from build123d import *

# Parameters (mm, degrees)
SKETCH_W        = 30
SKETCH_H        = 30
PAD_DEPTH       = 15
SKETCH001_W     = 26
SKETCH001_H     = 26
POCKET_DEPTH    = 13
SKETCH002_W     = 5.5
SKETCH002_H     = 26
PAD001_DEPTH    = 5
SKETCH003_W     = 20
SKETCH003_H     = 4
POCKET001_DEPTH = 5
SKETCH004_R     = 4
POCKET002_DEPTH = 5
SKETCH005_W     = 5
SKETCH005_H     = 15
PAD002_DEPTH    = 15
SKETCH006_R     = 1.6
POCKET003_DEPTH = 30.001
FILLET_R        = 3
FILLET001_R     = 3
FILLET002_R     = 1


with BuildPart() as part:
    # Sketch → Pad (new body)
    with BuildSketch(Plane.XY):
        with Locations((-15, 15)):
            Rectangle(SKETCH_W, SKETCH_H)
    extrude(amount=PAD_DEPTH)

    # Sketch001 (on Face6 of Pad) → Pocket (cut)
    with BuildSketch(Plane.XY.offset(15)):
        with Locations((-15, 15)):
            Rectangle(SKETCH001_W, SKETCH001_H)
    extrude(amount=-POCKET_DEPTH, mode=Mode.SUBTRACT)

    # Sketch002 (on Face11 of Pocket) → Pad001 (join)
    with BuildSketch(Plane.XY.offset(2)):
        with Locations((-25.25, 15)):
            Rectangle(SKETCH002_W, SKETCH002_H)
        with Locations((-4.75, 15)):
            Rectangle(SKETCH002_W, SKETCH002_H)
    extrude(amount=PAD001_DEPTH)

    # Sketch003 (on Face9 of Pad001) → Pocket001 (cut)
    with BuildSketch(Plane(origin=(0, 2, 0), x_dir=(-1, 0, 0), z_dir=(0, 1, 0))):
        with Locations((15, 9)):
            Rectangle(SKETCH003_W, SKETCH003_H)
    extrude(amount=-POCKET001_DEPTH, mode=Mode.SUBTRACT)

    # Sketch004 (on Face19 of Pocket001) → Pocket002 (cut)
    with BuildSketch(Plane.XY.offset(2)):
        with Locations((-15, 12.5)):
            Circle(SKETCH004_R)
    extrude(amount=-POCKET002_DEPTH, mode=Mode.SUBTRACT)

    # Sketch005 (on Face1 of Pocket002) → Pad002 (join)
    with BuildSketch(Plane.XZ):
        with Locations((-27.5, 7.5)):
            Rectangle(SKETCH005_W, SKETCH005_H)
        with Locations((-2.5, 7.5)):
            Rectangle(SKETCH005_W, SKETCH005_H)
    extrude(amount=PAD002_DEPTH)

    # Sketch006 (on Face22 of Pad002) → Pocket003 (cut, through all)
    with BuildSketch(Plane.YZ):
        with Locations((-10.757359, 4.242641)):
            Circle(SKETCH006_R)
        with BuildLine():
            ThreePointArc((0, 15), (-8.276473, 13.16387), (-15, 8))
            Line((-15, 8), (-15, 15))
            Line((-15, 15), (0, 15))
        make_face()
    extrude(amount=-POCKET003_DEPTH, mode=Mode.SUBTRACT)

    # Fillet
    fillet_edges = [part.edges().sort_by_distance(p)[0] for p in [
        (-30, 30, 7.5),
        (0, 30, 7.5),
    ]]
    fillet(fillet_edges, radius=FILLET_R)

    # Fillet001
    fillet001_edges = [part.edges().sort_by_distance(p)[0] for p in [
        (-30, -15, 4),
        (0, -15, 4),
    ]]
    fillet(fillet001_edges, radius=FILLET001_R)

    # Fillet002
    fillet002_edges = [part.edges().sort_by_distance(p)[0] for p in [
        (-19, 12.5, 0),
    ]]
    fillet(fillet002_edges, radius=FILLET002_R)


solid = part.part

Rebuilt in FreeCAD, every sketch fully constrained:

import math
import FreeCAD as App
import Part
import Sketcher

V = App.Vector


def edges_at(feature, points):
    """Names of the edges that pass closest to the given points."""
    edges = feature.Shape.Edges
    near = lambda p: min(range(len(edges)), key=lambda i: edges[i].distToShape(Part.Vertex(*p))[0])
    return sorted({f"Edge{near(p) + 1}" for p in points})

doc = App.newDocument("Part")
body = doc.addObject("PartDesign::Body", "Body")

sketch1 = body.newObject("Sketcher::SketchObject", "Sketch")
sketch1.AttachmentSupport = (doc.getObject("XY_Plane"), [""])
sketch1.MapMode = "FlatFace"
sketch1.addGeometry([
    Part.LineSegment(V(-30, 30, 0), V(-30, 0, 0)),
    Part.LineSegment(V(-30, 0, 0), V(0, 0, 0)),
    Part.LineSegment(V(0, 0, 0), V(0, 30, 0)),
    Part.LineSegment(V(0, 30, 0), V(-30, 30, 0)),
], False)
sketch1.addConstraint([
    Sketcher.Constraint("Coincident", 0, 2, 1, 1),
    Sketcher.Constraint("Coincident", 1, 2, 2, 1),
    Sketcher.Constraint("Coincident", 2, 2, 3, 1),
    Sketcher.Constraint("Coincident", 3, 2, 0, 1),
    Sketcher.Constraint("Vertical", 0),
    Sketcher.Constraint("Horizontal", 1),
    Sketcher.Constraint("Vertical", 2),
    Sketcher.Constraint("Horizontal", 3),
    Sketcher.Constraint("Coincident", 1, 2, -1, 1),
    Sketcher.Constraint("Equal", 3, 0),
    Sketcher.Constraint("DistanceX", 1, 1, 1, 2, 30.0),
])
pad1 = body.newObject("PartDesign::Pad", "Pad")
pad1.Profile = sketch1
pad1.Length = 15

sketch2 = body.newObject("Sketcher::SketchObject", "Sketch001")
sketch2.AttachmentSupport = (doc.getObject("XY_Plane"), [""])
sketch2.MapMode = "FlatFace"
sketch2.AttachmentOffset = App.Placement(V(0, 0, 15), App.Rotation())
sketch2.addGeometry([
    Part.LineSegment(V(-28, 28, 0), V(-28, 2, 0)),
    Part.LineSegment(V(-28, 2, 0), V(-2, 2, 0)),
    Part.LineSegment(V(-2, 2, 0), V(-2, 28, 0)),
    Part.LineSegment(V(-2, 28, 0), V(-28, 28, 0)),
], False)
sketch2.addConstraint([
    Sketcher.Constraint("Coincident", 0, 2, 1, 1),
    Sketcher.Constraint("Coincident", 1, 2, 2, 1),
    Sketcher.Constraint("Coincident", 2, 2, 3, 1),
    Sketcher.Constraint("Coincident", 3, 2, 0, 1),
    Sketcher.Constraint("Vertical", 0),
    Sketcher.Constraint("Horizontal", 1),
    Sketcher.Constraint("Vertical", 2),
    Sketcher.Constraint("Horizontal", 3),
    Sketcher.Constraint("Equal", 3, 0),
    Sketcher.Constraint("DistanceX", 1, 1, 1, 2, 26.0),
    Sketcher.Constraint("DistanceX", 0, 2, -1, 1, 28.0),
    Sketcher.Constraint("DistanceY", -1, 1, 0, 2, 2.0),
])
pocket1 = body.newObject("PartDesign::Pocket", "Pocket")
pocket1.Profile = sketch2
pocket1.Length = 13

sketch3 = body.newObject("Sketcher::SketchObject", "Sketch002")
sketch3.AttachmentSupport = (doc.getObject("XY_Plane"), [""])
sketch3.MapMode = "FlatFace"
sketch3.AttachmentOffset = App.Placement(V(0, 0, 2), App.Rotation())
sketch3.addGeometry([
    Part.LineSegment(V(-28, 28, 0), V(-28, 2, 0)),
    Part.LineSegment(V(-28, 2, 0), V(-22.5, 2, 0)),
    Part.LineSegment(V(-22.5, 2, 0), V(-22.5, 28, 0)),
    Part.LineSegment(V(-22.5, 28, 0), V(-28, 28, 0)),
    Part.LineSegment(V(-7.5, 28, 0), V(-7.5, 2, 0)),
    Part.LineSegment(V(-7.5, 2, 0), V(-2, 2, 0)),
    Part.LineSegment(V(-2, 2, 0), V(-2, 28, 0)),
    Part.LineSegment(V(-2, 28, 0), V(-7.5, 28, 0)),
], False)
sketch3.addConstraint([
    Sketcher.Constraint("Coincident", 0, 2, 1, 1),
    Sketcher.Constraint("Coincident", 1, 2, 2, 1),
    Sketcher.Constraint("Coincident", 2, 2, 3, 1),
    Sketcher.Constraint("Coincident", 3, 2, 0, 1),
    Sketcher.Constraint("Coincident", 4, 2, 5, 1),
    Sketcher.Constraint("Coincident", 5, 2, 6, 1),
    Sketcher.Constraint("Coincident", 6, 2, 7, 1),
    Sketcher.Constraint("Coincident", 7, 2, 4, 1),
    Sketcher.Constraint("Vertical", 0),
    Sketcher.Constraint("Horizontal", 1),
    Sketcher.Constraint("Vertical", 2),
    Sketcher.Constraint("Horizontal", 3),
    Sketcher.Constraint("Vertical", 4),
    Sketcher.Constraint("Horizontal", 5),
    Sketcher.Constraint("Vertical", 6),
    Sketcher.Constraint("Horizontal", 7),
    Sketcher.Constraint("Horizontal", 1, 2, 4, 2),
    Sketcher.Constraint("Horizontal", 3, 2, 6, 2),
    Sketcher.Constraint("Equal", 3, 5),
    Sketcher.Constraint("DistanceY", 0, 2, 0, 1, 26.0),
    Sketcher.Constraint("DistanceX", 1, 1, 1, 2, 5.5),
    Sketcher.Constraint("DistanceX", 0, 2, -1, 1, 28.0),
    Sketcher.Constraint("DistanceY", -1, 1, 0, 2, 2.0),
    Sketcher.Constraint("DistanceX", 5, 2, -1, 1, 2.0),
])
pad2 = body.newObject("PartDesign::Pad", "Pad001")
pad2.Profile = sketch3
pad2.Length = 5

sketch4 = body.newObject("Sketcher::SketchObject", "Sketch003")
sketch4.AttachmentSupport = (doc.getObject("XZ_Plane"), [""])
sketch4.MapMode = "FlatFace"
sketch4.AttachmentOffset = App.Placement(V(0, 0, -2), App.Rotation())
sketch4.addGeometry([
    Part.LineSegment(V(-5, 11, 0), V(-5, 7, 0)),
    Part.LineSegment(V(-5, 7, 0), V(-25, 7, 0)),
    Part.LineSegment(V(-25, 7, 0), V(-25, 11, 0)),
    Part.LineSegment(V(-25, 11, 0), V(-5, 11, 0)),
], False)
sketch4.addConstraint([
    Sketcher.Constraint("Coincident", 0, 2, 1, 1),
    Sketcher.Constraint("Coincident", 1, 2, 2, 1),
    Sketcher.Constraint("Coincident", 2, 2, 3, 1),
    Sketcher.Constraint("Coincident", 3, 2, 0, 1),
    Sketcher.Constraint("Vertical", 0),
    Sketcher.Constraint("Horizontal", 1),
    Sketcher.Constraint("Vertical", 2),
    Sketcher.Constraint("Horizontal", 3),
    Sketcher.Constraint("DistanceX", 1, 2, 1, 1, 20.0),
    Sketcher.Constraint("DistanceY", 0, 2, 0, 1, 4.0),
    Sketcher.Constraint("DistanceX", 0, 2, -1, 1, 5.0),
    Sketcher.Constraint("DistanceY", -1, 1, 0, 2, 7.0),
])
pocket2 = body.newObject("PartDesign::Pocket", "Pocket001")
pocket2.Profile = sketch4
pocket2.Length = 5
pocket2.Reversed = True

sketch5 = body.newObject("Sketcher::SketchObject", "Sketch004")
sketch5.AttachmentSupport = (doc.getObject("XY_Plane"), [""])
sketch5.MapMode = "FlatFace"
sketch5.AttachmentOffset = App.Placement(V(0, 0, 2), App.Rotation())
sketch5.addGeometry(Part.Circle(V(-15, 12.5, 0), V(0, 0, 1), 4), False)
sketch5.addConstraint([
    Sketcher.Constraint("Diameter", 0, 8.0),
    Sketcher.Constraint("DistanceX", 0, 3, -1, 1, 15.0),
    Sketcher.Constraint("DistanceY", -1, 1, 0, 3, 12.5),
])
pocket3 = body.newObject("PartDesign::Pocket", "Pocket002")
pocket3.Profile = sketch5
pocket3.Length = 5

sketch6 = body.newObject("Sketcher::SketchObject", "Sketch005")
sketch6.AttachmentSupport = (doc.getObject("XZ_Plane"), [""])
sketch6.MapMode = "FlatFace"
sketch6.addGeometry([
    Part.LineSegment(V(-30, 15, 0), V(-30, 0, 0)),
    Part.LineSegment(V(-30, 0, 0), V(-25, 0, 0)),
    Part.LineSegment(V(-25, 0, 0), V(-25, 15, 0)),
    Part.LineSegment(V(-25, 15, 0), V(-30, 15, 0)),
    Part.LineSegment(V(-5, 15, 0), V(-5, 0, 0)),
    Part.LineSegment(V(-5, 0, 0), V(0, 0, 0)),
    Part.LineSegment(V(0, 0, 0), V(0, 15, 0)),
    Part.LineSegment(V(0, 15, 0), V(-5, 15, 0)),
], False)
sketch6.addConstraint([
    Sketcher.Constraint("Coincident", 0, 2, 1, 1),
    Sketcher.Constraint("Coincident", 1, 2, 2, 1),
    Sketcher.Constraint("Coincident", 2, 2, 3, 1),
    Sketcher.Constraint("Coincident", 3, 2, 0, 1),
    Sketcher.Constraint("Coincident", 4, 2, 5, 1),
    Sketcher.Constraint("Coincident", 5, 2, 6, 1),
    Sketcher.Constraint("Coincident", 6, 2, 7, 1),
    Sketcher.Constraint("Coincident", 7, 2, 4, 1),
    Sketcher.Constraint("Vertical", 0),
    Sketcher.Constraint("Horizontal", 1),
    Sketcher.Constraint("Vertical", 2),
    Sketcher.Constraint("Horizontal", 3),
    Sketcher.Constraint("Vertical", 4),
    Sketcher.Constraint("Horizontal", 5),
    Sketcher.Constraint("Vertical", 6),
    Sketcher.Constraint("Horizontal", 7),
    Sketcher.Constraint("Coincident", 5, 2, -1, 1),
    Sketcher.Constraint("PointOnObject", 0, 2, -1),
    Sketcher.Constraint("Horizontal", 3, 2, 6, 2),
    Sketcher.Constraint("Equal", 3, 5),
    Sketcher.Constraint("DistanceX", 1, 1, 1, 2, 5.0),
    Sketcher.Constraint("DistanceY", 0, 2, 0, 1, 15.0),
    Sketcher.Constraint("DistanceX", 0, 2, -1, 1, 30.0),
])
pad3 = body.newObject("PartDesign::Pad", "Pad002")
pad3.Profile = sketch6
pad3.Length = 15

sketch7 = body.newObject("Sketcher::SketchObject", "Sketch006")
sketch7.AttachmentSupport = (doc.getObject("YZ_Plane"), [""])
sketch7.MapMode = "FlatFace"
sketch7.addGeometry([
    Part.Circle(V(-10.757359, 4.242641, 0), V(0, 0, 1), 1.6),
    Part.ArcOfCircle(Part.Circle(V(-0.000001, -4.571427, 0), V(0, 0, 1), 19.571427), math.radians(89.999999), math.radians(140.033788)),
    Part.LineSegment(V(0, 15, 0), V(-15, 15, 0)),
    Part.LineSegment(V(-15, 15, 0), V(-15, 8, 0)),
], False)
sketch7.addConstraint([
    Sketcher.Constraint("Tangent", 1, 1, 2, 1),
    Sketcher.Constraint("Coincident", 2, 2, 3, 1),
    Sketcher.Constraint("Coincident", 3, 2, 1, 2),
    Sketcher.Constraint("Horizontal", 2),
    Sketcher.Constraint("Vertical", 3),
    Sketcher.Constraint("PointOnObject", 1, 3, -2),
    Sketcher.Constraint("Diameter", 0, 3.2),
    Sketcher.Constraint("DistanceX", 2, 2, 2, 1, 15.0),
    Sketcher.Constraint("DistanceY", 3, 2, 3, 1, 7.0),
    Sketcher.Constraint("DistanceY", -1, 1, 1, 1, 15.0),
    Sketcher.Constraint("DistanceX", 0, 3, -1, 1, 10.757359),
    Sketcher.Constraint("DistanceY", -1, 1, 0, 3, 4.242641),
])
pocket4 = body.newObject("PartDesign::Pocket", "Pocket003")
pocket4.Profile = sketch7
pocket4.Type = "ThroughAll"
doc.recompute()

fillet = body.newObject("PartDesign::Fillet", "Fillet")
fillet.Base = (pocket4, edges_at(pocket4, [(-30, 30, 7.5), (0, 30, 7.5)]))
fillet.Radius = 3
doc.recompute()

fillet2 = body.newObject("PartDesign::Fillet", "Fillet001")
fillet2.Base = (fillet, edges_at(fillet, [(-30, -15, 4), (0, -15, 4)]))
fillet2.Radius = 3
doc.recompute()

fillet3 = body.newObject("PartDesign::Fillet", "Fillet002")
fillet3.Base = (fillet2, edges_at(fillet2, [(-19, 12.5, 0)]))
fillet3.Radius = 1

doc.recompute()
